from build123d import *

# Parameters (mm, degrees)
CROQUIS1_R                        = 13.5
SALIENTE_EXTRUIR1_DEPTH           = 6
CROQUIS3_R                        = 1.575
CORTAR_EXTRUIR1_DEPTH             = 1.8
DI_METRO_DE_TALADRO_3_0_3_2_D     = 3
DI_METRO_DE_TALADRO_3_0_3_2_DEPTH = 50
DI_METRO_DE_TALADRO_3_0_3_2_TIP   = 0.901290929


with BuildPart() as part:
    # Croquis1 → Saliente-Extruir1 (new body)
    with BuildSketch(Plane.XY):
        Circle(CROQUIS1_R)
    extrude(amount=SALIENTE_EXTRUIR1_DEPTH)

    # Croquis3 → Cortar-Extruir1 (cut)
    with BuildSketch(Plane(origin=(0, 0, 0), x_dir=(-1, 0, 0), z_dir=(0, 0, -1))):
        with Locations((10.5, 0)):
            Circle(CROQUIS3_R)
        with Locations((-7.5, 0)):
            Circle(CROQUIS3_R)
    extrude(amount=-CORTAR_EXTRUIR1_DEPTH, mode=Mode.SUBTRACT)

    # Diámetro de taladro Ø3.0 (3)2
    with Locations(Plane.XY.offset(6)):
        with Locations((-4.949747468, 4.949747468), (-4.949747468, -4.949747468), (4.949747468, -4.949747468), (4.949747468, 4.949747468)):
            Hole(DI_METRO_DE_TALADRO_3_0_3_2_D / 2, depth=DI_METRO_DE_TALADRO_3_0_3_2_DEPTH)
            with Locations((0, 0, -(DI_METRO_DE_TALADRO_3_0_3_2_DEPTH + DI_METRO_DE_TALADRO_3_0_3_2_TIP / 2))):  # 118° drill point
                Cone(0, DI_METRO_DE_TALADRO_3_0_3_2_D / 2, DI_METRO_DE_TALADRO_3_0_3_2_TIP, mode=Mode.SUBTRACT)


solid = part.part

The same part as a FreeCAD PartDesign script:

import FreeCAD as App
import Part
import Sketcher

doc = App.newDocument("Part")
body = doc.addObject("PartDesign::Body", "Body")

# Sketch on XY plane
sketch1 = doc.addObject("Sketcher::SketchObject", "Sketch")
body.addObject(sketch1)
sketch1.AttachmentSupport = (doc.XY_Plane, [""])
sketch1.MapMode = "FlatFace"
sketch1.addGeometry(Part.Circle(App.Vector(0, 0, 0), App.Vector(0, 0, 1), 13.5), False)
sketch1.addConstraint([
    Sketcher.Constraint("Coincident", 0, 3, -1, 1),
    Sketcher.Constraint("Diameter", 0, 27.0),
])
pad1 = doc.addObject("PartDesign::Pad", "Pad")
body.addObject(pad1)
pad1.Profile = sketch1
pad1.Length = 6

# Sketch on XY plane
sketch2 = doc.addObject("Sketcher::SketchObject", "Sketch001")
body.addObject(sketch2)
sketch2.AttachmentSupport = (doc.XY_Plane, [""])
sketch2.MapMode = "FlatFace"
sketch2.addGeometry([
    Part.Circle(App.Vector(-10.5, 0, 0), App.Vector(0, 0, 1), 1.575),
    Part.Circle(App.Vector(7.5, 0, 0), App.Vector(0, 0, 1), 1.575),
], False)
sketch2.addConstraint([
    Sketcher.Constraint("Equal", 0, 1),
    Sketcher.Constraint("PointOnObject", 0, 3, -1),
    Sketcher.Constraint("PointOnObject", 1, 3, -1),
    Sketcher.Constraint("Diameter", 0, 3.15),
    Sketcher.Constraint("DistanceX", 0, 3, 1, 3, 18.0),
    Sketcher.Constraint("DistanceX", 0, 3, -1, 1, 10.5),
])
pocket1 = doc.addObject("PartDesign::Pocket", "Pocket")
body.addObject(pocket1)
pocket1.Profile = sketch2
pocket1.Length = 1.8
pocket1.Reversed = True

# Sketch on XY plane
sketch3 = doc.addObject("Sketcher::SketchObject", "Sketch002")
body.addObject(sketch3)
sketch3.AttachmentSupport = (doc.XY_Plane, [""])
sketch3.MapMode = "FlatFace"
sketch3.AttachmentOffset = App.Placement(App.Vector(0, 0, 6), App.Rotation())
sketch3.addGeometry([
    Part.Circle(App.Vector(-4.949747, 4.949747, 0), App.Vector(0, 0, 1), 1.5),
    Part.Circle(App.Vector(-4.949747, -4.949747, 0), App.Vector(0, 0, 1), 1.5),
    Part.Circle(App.Vector(4.949747, -4.949747, 0), App.Vector(0, 0, 1), 1.5),
    Part.Circle(App.Vector(4.949747, 4.949747, 0), App.Vector(0, 0, 1), 1.5),
], False)
sketch3.addConstraint([
    Sketcher.Constraint("Equal", 0, 1),
    Sketcher.Constraint("Equal", 1, 2),
    Sketcher.Constraint("Equal", 2, 3),
    Sketcher.Constraint("Symmetric", 0, 3, 2, 3, -1, 1),
    Sketcher.Constraint("Symmetric", 1, 3, 3, 3, -1, 1),
    Sketcher.Constraint("Symmetric", 1, 3, 2, 3, -2),
    Sketcher.Constraint("Diameter", 0, 3.0),
    Sketcher.Constraint("DistanceX", 0, 3, -1, 1, 4.949747),
    Sketcher.Constraint("DistanceY", -1, 1, 0, 3, 4.949747),
])
doc.recompute()
hole = doc.addObject("PartDesign::Hole", "Hole")
body.addObject(hole)
hole.Profile = sketch3
hole.ThreadType = "None"
hole.Diameter = 3
hole.DepthType = "Dimension"
hole.Depth = 50
hole.DrillPoint = "Angled"
hole.DrillPointAngle = 118

doc.recompute()
